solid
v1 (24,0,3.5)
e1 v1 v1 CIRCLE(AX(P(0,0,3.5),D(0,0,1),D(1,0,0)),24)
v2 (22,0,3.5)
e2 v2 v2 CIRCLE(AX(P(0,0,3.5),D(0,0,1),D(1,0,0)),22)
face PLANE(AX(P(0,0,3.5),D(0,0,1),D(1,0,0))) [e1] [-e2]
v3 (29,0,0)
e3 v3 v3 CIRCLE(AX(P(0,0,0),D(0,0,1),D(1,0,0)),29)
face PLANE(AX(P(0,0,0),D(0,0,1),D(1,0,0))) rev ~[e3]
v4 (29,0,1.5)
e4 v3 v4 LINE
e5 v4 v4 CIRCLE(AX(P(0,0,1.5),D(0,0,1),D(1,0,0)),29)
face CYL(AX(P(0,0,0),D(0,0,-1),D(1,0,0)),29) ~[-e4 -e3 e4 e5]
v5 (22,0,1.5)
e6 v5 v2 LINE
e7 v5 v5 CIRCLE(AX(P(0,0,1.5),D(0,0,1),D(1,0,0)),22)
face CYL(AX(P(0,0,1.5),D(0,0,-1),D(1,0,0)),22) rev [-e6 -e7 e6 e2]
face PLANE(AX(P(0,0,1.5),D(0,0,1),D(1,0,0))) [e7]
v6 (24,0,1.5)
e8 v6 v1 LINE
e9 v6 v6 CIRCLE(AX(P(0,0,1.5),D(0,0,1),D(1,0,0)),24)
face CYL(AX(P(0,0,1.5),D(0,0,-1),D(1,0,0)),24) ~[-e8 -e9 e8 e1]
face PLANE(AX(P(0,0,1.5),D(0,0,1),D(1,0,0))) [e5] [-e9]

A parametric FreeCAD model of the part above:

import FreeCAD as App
import Part
import Sketcher
from FreeCAD import Vector
Q = App.Units.Quantity

doc = App.newDocument("Part")
body = doc.addObject("PartDesign::Body", "Body")

sketch1 = body.newObject("Sketcher::SketchObject", "Sketch")
sketch1.AttachmentSupport = (doc.getObject("XY_Plane"), [""])
sketch1.MapMode = "FlatFace"
sketch1.addGeometry(Part.Circle(Vector(0, 0, 0), Vector(0, 0, 1), 29), False)
sketch1.addConstraint(Sketcher.Constraint("Coincident", 0, 3, -1, 1))
sketch1.addConstraint(Sketcher.Constraint("Diameter", 0, Q("58 mm")))
pad1 = body.newObject("PartDesign::Pad", "Pad")
pad1.Profile = sketch1
pad1.Length = 1.5

sketch2 = body.newObject("Sketcher::SketchObject", "Sketch001")
sketch2.AttachmentSupport = (doc.getObject("XY_Plane"), [""])
sketch2.MapMode = "FlatFace"
sketch2.AttachmentOffset = App.Placement(Vector(0, 0, 1.5), App.Rotation())
sketch2.addGeometry(Part.Circle(Vector(0, 0, 0), Vector(0, 0, 1), 24), False)
sketch2.addGeometry(Part.Circle(Vector(0, 0, 0), Vector(0, 0, 1), 22), False)
sketch2.addConstraint(Sketcher.Constraint("Coincident", 0, 3, -1, 1))
sketch2.addConstraint(Sketcher.Constraint("Coincident", 1, 3, -1, 1))
sketch2.addConstraint(Sketcher.Constraint("Diameter", 0, Q("48 mm")))
sketch2.addConstraint(Sketcher.Constraint("Diameter", 1, Q("44 mm")))
pad2 = body.newObject("PartDesign::Pad", "Pad001")
pad2.Profile = sketch2
pad2.Length = 2

doc.recompute()
